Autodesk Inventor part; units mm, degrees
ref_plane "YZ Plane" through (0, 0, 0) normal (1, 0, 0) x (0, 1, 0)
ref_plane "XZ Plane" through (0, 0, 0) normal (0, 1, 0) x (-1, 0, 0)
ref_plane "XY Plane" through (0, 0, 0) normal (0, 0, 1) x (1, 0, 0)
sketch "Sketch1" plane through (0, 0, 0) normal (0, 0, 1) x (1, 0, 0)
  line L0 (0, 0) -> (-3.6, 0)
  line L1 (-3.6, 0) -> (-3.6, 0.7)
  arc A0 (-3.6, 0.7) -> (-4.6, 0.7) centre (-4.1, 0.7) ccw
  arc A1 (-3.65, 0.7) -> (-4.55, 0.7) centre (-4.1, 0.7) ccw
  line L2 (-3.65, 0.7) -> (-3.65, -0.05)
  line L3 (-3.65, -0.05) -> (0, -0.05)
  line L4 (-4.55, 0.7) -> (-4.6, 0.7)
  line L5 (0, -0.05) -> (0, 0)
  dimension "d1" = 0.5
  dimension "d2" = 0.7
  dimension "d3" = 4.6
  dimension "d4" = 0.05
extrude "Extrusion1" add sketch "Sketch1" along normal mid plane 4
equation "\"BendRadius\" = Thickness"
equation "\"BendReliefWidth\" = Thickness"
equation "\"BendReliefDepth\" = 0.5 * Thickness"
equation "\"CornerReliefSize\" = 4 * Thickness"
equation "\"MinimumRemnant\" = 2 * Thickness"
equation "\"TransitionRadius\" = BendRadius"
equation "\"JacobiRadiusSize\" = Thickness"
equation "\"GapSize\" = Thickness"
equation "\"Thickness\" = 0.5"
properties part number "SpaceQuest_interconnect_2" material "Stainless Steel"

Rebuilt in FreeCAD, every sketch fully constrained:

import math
import FreeCAD as App
import Part
import Sketcher
from FreeCAD import Vector

doc = App.newDocument("Part")
params = doc.addObject("Spreadsheet::Sheet", "Params")
for row, (alias, value) in enumerate([
    ("sketch1_radius", "0.5 mm"),
    ("sketch1_height", "0.7 mm"),
    ("sketch1_width", "0.05 mm"),
    ("pad1_length", "4 mm"),
], start=1):
    params.set(f"A{row}", alias)
    params.set(f"B{row}", "=" + value)
    params.setAlias(f"B{row}", alias)

body = doc.addObject("PartDesign::Body", "Body")

sketch1 = body.newObject("Sketcher::SketchObject", "Sketch")
sketch1.AttachmentSupport = (doc.getObject("XY_Plane"), [""])
sketch1.MapMode = "FlatFace"
sketch1.addGeometry([
    Part.LineSegment(Vector(0, -0.05, 0), Vector(0, 0, 0)),
    Part.LineSegment(Vector(0, 0, 0), Vector(-3.6, 0, 0)),
    Part.LineSegment(Vector(-3.6, 0, 0), Vector(-3.6, 0.7, 0)),
    Part.ArcOfCircle(Part.Circle(Vector(-4.1, 0.7, 0), Vector(0, 0, 1), 0.5), math.radians(0), math.radians(180)),
    Part.LineSegment(Vector(-4.6, 0.7, 0), Vector(-4.55, 0.7, 0)),
    Part.ArcOfCircle(Part.Circle(Vector(-4.1, 0.7, 0), Vector(0, 0, 1), 0.45), math.radians(0), math.radians(180)),
    Part.LineSegment(Vector(-3.65, 0.7, 0), Vector(-3.65, -0.05, 0)),
    Part.LineSegment(Vector(-3.65, -0.05, 0), Vector(0, -0.05, 0)),
], False)
sketch1.addConstraint([
    Sketcher.Constraint("Coincident", 0, 2, 1, 1),
    Sketcher.Constraint("Coincident", 1, 2, 2, 1),
    Sketcher.Constraint("Tangent", 2, 2, 3, 1),
    Sketcher.Constraint("Coincident", 3, 2, 4, 1),
    Sketcher.Constraint("Coincident", 4, 2, 5, 2),
    Sketcher.Constraint("Tangent", 5, 1, 6, 1),
    Sketcher.Constraint("Coincident", 6, 2, 7, 1),
    Sketcher.Constraint("Coincident", 7, 2, 0, 1),
    Sketcher.Constraint("Vertical", 0),
    Sketcher.Constraint("Horizontal", 1),
    Sketcher.Constraint("Vertical", 2),
    Sketcher.Constraint("Horizontal", 4),
    Sketcher.Constraint("Vertical", 6),
    Sketcher.Constraint("Horizontal", 7),
    Sketcher.Constraint("Coincident", 0, 2, -1, 1),
    Sketcher.Constraint("Coincident", 5, 3, 3, 3),
    Sketcher.Constraint("Horizontal", 2, 2, 3, 2),
    Sketcher.Constraint("Equal", 4, 0),
    Sketcher.Constraint("Radius", 3, 0.5),
    Sketcher.Constraint("DistanceY", 2, 1, 2, 2, 0.7),
    Sketcher.Constraint("DistanceX", 4, 1, 4, 2, 0.05),
    Sketcher.Constraint("DistanceX", 3, 2, -1, 1, 4.6),
])
sketch1.setExpression("Constraints[18]", "Params.sketch1_radius")
sketch1.setExpression("Constraints[19]", "Params.sketch1_height")
sketch1.setExpression("Constraints[20]", "Params.sketch1_width")
pad1 = body.newObject("PartDesign::Pad", "Pad")
pad1.Profile = sketch1
pad1.setExpression("Length", "Params.pad1_length")
pad1.Midplane = True

doc.recompute()
